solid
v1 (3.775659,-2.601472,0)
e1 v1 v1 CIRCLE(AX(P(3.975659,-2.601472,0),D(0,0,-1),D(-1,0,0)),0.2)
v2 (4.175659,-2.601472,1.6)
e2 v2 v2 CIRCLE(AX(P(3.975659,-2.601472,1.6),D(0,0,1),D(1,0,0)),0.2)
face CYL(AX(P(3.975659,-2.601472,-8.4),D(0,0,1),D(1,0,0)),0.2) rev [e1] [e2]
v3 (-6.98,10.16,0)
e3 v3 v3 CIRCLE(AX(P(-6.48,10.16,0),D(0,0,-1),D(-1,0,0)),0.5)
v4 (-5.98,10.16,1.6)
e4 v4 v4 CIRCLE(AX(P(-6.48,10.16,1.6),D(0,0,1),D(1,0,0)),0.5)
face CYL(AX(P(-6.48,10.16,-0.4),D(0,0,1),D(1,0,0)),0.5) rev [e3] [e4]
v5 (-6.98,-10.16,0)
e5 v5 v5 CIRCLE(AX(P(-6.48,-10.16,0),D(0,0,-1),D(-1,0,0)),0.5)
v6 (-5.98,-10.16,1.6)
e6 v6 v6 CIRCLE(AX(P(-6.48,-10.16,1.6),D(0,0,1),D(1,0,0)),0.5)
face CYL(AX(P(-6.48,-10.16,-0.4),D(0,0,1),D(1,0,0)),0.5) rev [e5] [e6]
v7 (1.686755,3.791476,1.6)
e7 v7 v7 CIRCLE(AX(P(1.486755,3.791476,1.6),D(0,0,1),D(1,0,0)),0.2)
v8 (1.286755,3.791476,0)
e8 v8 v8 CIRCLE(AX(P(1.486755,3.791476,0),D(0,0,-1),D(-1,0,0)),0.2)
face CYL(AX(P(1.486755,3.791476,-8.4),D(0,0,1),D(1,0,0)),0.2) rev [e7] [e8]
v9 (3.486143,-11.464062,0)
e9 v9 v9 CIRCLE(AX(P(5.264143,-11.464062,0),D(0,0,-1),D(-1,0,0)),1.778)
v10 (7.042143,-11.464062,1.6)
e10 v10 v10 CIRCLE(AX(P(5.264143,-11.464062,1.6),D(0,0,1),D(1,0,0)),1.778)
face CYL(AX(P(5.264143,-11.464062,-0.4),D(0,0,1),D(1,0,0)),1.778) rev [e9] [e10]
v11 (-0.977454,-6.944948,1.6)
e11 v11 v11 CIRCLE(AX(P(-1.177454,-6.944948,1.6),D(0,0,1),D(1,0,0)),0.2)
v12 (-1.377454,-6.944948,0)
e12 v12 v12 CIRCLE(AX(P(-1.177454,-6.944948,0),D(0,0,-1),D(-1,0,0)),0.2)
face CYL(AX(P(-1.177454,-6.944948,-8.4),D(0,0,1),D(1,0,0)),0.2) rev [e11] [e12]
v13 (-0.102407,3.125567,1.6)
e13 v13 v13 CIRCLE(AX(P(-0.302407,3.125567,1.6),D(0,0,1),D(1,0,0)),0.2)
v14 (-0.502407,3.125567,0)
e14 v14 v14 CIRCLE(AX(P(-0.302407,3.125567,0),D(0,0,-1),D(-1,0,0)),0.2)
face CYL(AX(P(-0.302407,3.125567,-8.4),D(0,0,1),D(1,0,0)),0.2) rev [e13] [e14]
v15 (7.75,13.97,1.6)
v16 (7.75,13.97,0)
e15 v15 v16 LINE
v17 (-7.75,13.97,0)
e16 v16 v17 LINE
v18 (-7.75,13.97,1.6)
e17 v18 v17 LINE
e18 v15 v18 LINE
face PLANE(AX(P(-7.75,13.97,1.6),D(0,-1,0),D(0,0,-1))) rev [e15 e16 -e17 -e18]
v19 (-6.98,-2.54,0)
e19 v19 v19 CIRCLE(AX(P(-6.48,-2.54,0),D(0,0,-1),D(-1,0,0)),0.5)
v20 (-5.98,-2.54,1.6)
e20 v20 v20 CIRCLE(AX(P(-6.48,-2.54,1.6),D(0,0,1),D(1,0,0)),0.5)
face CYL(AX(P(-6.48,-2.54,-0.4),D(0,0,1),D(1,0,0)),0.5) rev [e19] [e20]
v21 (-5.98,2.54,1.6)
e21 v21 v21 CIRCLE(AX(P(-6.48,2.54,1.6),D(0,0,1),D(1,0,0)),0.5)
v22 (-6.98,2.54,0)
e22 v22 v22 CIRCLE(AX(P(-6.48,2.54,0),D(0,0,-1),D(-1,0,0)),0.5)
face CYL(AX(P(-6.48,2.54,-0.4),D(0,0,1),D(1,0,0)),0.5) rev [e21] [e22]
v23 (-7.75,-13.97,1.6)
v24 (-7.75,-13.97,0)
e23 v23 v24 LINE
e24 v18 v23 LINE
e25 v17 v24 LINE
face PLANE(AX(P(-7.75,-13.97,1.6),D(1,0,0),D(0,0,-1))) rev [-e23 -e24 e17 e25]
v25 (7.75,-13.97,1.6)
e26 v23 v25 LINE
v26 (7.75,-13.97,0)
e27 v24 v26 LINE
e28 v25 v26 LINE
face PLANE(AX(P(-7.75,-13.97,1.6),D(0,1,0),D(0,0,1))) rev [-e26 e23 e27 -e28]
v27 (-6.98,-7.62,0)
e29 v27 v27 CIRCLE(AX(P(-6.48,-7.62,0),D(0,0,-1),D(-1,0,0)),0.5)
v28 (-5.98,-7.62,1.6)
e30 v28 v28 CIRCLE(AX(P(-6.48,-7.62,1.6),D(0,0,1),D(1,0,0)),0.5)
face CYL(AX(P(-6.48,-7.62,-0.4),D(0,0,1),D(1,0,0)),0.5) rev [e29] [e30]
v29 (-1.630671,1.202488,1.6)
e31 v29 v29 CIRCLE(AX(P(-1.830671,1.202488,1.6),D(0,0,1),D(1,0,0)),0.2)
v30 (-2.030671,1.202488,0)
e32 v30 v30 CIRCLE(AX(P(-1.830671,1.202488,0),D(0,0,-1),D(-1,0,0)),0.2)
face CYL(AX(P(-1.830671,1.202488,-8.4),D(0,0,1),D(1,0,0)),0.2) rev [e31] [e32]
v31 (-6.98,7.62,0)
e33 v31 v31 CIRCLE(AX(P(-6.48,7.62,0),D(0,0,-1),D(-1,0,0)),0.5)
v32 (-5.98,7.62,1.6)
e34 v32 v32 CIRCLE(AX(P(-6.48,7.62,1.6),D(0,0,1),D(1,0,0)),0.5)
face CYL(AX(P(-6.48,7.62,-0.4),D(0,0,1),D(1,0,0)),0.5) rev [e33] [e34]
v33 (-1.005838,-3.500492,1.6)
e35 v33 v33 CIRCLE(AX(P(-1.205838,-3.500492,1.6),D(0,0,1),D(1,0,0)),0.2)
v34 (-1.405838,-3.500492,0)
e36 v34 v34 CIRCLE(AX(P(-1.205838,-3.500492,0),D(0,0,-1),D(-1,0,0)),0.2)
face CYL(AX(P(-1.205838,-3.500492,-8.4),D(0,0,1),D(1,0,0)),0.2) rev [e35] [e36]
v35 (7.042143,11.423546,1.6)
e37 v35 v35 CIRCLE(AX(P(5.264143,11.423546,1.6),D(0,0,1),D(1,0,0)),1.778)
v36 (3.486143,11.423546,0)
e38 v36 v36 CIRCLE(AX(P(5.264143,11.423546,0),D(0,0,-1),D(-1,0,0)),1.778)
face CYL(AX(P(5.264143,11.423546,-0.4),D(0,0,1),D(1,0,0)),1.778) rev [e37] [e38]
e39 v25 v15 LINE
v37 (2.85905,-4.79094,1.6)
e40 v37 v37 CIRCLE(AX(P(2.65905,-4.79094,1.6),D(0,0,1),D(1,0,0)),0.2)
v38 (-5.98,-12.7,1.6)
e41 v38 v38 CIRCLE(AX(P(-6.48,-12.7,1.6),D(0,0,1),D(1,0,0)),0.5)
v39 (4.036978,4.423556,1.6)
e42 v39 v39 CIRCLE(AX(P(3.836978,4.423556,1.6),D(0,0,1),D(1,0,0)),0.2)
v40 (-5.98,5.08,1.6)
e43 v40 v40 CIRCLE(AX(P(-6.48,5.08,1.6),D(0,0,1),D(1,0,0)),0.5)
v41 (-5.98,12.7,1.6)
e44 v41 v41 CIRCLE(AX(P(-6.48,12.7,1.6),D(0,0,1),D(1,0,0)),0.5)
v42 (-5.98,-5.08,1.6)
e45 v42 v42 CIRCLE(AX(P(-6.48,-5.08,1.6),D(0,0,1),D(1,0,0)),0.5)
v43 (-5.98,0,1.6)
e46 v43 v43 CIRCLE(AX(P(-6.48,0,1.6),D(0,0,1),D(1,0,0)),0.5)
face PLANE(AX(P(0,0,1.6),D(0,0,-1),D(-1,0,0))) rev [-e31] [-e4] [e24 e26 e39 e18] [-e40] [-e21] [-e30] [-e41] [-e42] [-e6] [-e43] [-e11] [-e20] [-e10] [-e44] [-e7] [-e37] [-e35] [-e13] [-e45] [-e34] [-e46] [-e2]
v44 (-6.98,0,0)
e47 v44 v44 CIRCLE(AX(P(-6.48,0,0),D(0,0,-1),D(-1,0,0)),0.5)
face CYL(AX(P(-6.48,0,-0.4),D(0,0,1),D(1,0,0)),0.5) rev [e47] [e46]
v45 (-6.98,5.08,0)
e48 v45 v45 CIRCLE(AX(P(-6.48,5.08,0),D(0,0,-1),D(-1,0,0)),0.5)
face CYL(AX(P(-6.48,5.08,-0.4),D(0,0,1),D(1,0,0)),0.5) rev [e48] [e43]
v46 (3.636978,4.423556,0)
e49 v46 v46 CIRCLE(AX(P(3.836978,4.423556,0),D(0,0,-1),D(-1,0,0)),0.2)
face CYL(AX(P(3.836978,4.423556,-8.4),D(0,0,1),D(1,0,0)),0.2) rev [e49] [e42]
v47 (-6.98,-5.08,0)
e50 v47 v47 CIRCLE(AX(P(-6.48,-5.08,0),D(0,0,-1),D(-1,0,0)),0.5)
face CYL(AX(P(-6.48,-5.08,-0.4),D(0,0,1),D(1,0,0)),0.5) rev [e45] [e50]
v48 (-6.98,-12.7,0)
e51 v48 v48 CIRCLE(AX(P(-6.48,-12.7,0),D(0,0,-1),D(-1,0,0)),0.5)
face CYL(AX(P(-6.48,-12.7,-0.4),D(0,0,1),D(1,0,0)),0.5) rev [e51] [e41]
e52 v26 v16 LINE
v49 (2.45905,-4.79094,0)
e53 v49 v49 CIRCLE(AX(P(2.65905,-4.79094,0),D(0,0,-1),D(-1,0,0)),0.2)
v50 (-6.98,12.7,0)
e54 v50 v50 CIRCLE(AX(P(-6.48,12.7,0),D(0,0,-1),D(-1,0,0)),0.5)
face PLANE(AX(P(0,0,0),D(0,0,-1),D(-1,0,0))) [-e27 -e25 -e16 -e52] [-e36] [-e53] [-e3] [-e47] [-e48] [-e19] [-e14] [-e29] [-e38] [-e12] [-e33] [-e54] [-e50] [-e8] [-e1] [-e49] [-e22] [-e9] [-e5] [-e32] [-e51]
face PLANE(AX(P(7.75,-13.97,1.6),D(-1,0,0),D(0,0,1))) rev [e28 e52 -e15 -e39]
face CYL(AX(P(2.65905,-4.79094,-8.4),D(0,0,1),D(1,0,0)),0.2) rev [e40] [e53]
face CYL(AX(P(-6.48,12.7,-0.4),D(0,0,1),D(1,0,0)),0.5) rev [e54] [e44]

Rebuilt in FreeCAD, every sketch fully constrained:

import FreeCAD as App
import Part
import Sketcher
from FreeCAD import Vector


def add_polygon(sketch, points):
    """Adds a closed chain of lines whose ends are joined by coincident constraints."""
    first, n = sketch.GeometryCount, len(points)
    for a, b in zip(points, points[1:] + points[:1]):
        sketch.addGeometry(Part.LineSegment(App.Vector(*a, 0), App.Vector(*b, 0)), False)
    for i in range(n):
        sketch.addConstraint(Sketcher.Constraint("Coincident", first + i, 2, first + (i + 1) % n, 1))

doc = App.newDocument("Part")
params = doc.addObject("Spreadsheet::Sheet", "Params")
for row, (alias, value) in enumerate([
    ("sketch1_width", "15.5 mm"),
    ("sketch1_height", "27.94 mm"),
    ("pad1_length", "1.6 mm"),
    ("sketch2_diameter", "1 mm"),
    ("pocket1_length", "2 mm"),
    ("sketch3_diameter", "0.4 mm"),
    ("pocket2_length", "10 mm"),
], start=1):
    params.set(f"A{row}", alias)
    params.set(f"B{row}", "=" + value)
    params.setAlias(f"B{row}", alias)

body = doc.addObject("PartDesign::Body", "Body")

# Sketch on XY plane
sketch1 = doc.addObject("Sketcher::SketchObject", "Sketch")
body.addObject(sketch1)
sketch1.AttachmentSupport = (doc.XY_Plane, [""])
sketch1.MapMode = "FlatFace"
add_polygon(sketch1, [(-7.75, 13.97), (-7.75, -13.97), (7.75, -13.97), (7.75, 13.97)])  # lines 0-3
sketch1.addConstraint([
    Sketcher.Constraint("Vertical", 0),
    Sketcher.Constraint("Horizontal", 1),
    Sketcher.Constraint("Vertical", 2),
    Sketcher.Constraint("Horizontal", 3),
    Sketcher.Constraint("Symmetric", 0, 2, 2, 2, -1, 1),
    Sketcher.Constraint("DistanceX", 1, 1, 1, 2, 15.5),
    Sketcher.Constraint("DistanceY", 0, 2, 0, 1, 27.94),
])
sketch1.setExpression("Constraints[9]", "Params.sketch1_width")
sketch1.setExpression("Constraints[10]", "Params.sketch1_height")
pad1 = doc.addObject("PartDesign::Pad", "Pad")
body.addObject(pad1)
pad1.Profile = sketch1
pad1.setExpression("Length", "Params.pad1_length")

# Sketch on XY plane
sketch2 = doc.addObject("Sketcher::SketchObject", "Sketch001")
body.addObject(sketch2)
sketch2.AttachmentSupport = (doc.XY_Plane, [""])
sketch2.MapMode = "FlatFace"
sketch2.AttachmentOffset = App.Placement(Vector(0, 0, 1.6), App.Rotation())
sketch2.addGeometry([
    Part.Circle(Vector(-6.48, -12.7, 0), Vector(0, 0, 1), 0.5),  # 0
    Part.Circle(Vector(-6.48, -10.16, 0), Vector(0, 0, 1), 0.5),  # 1
    Part.Circle(Vector(-6.48, -7.62, 0), Vector(0, 0, 1), 0.5),  # 2
    Part.Circle(Vector(-6.48, -5.08, 0), Vector(0, 0, 1), 0.5),  # 3
    Part.Circle(Vector(-6.48, -2.54, 0), Vector(0, 0, 1), 0.5),  # 4
    Part.Circle(Vector(-6.48, 0, 0), Vector(0, 0, 1), 0.5),  # 5
    Part.Circle(Vector(-6.48, 2.54, 0), Vector(0, 0, 1), 0.5),  # 6
    Part.Circle(Vector(-6.48, 5.08, 0), Vector(0, 0, 1), 0.5),  # 7
    Part.Circle(Vector(-6.48, 7.62, 0), Vector(0, 0, 1), 0.5),  # 8
    Part.Circle(Vector(-6.48, 10.16, 0), Vector(0, 0, 1), 0.5),  # 9
    Part.Circle(Vector(-6.48, 12.7, 0), Vector(0, 0, 1), 0.5),  # 10
    Part.Circle(Vector(5.264143, 11.423546, 0), Vector(0, 0, 1), 1.778),  # 11
    Part.Circle(Vector(5.264143, -11.464062, 0), Vector(0, 0, 1), 1.778),  # 12
], False)
sketch2.addConstraint([
    Sketcher.Constraint("Equal", 0, 1),
    Sketcher.Constraint("Equal", 1, 2),
    Sketcher.Constraint("Equal", 2, 3),
    Sketcher.Constraint("Equal", 3, 4),
    Sketcher.Constraint("Equal", 4, 5),
    Sketcher.Constraint("Equal", 5, 6),
    Sketcher.Constraint("Equal", 6, 7),
    Sketcher.Constraint("Equal", 7, 8),
    Sketcher.Constraint("Equal", 8, 9),
    Sketcher.Constraint("Equal", 9, 10),
    Sketcher.Constraint("Equal", 11, 12),
    Sketcher.Constraint("Symmetric", 4, 3, 6, 3, -1),
    Sketcher.Constraint("Symmetric", 3, 3, 7, 3, -1),
    Sketcher.Constraint("Symmetric", 2, 3, 8, 3, -1),
    Sketcher.Constraint("Symmetric", 1, 3, 9, 3, -1),
    Sketcher.Constraint("Symmetric", 0, 3, 10, 3, -1),
    Sketcher.Constraint("PointOnObject", 5, 3, -1),
    Sketcher.Constraint("Vertical", 0, 3, 1, 3),
    Sketcher.Constraint("Vertical", 1, 3, 2, 3),
    Sketcher.Constraint("Vertical", 2, 3, 3, 3),
    Sketcher.Constraint("Vertical", 3, 3, 4, 3),
    Sketcher.Constraint("Vertical", 4, 3, 5, 3),
    Sketcher.Constraint("Vertical", 11, 3, 12, 3),
    Sketcher.Constraint("Diameter", 0, 1.0),
    Sketcher.Constraint("Diameter", 11, 3.556),
    Sketcher.Constraint("DistanceY", 0, 3, -1, 1, 12.7),
    Sketcher.Constraint("DistanceY", 1, 3, 6, 3, 12.7),
    Sketcher.Constraint("DistanceY", 2, 3, 7, 3, 12.7),
    Sketcher.Constraint("DistanceX", 0, 3, -1, 1, 6.48),
    Sketcher.Constraint("DistanceY", 1, 3, -1, 1, 10.16),
    Sketcher.Constraint("DistanceY", 2, 3, -1, 1, 7.62),
    Sketcher.Constraint("DistanceX", -1, 1, 11, 3, 5.264143),
    Sketcher.Constraint("DistanceY", -1, 1, 11, 3, 11.423546),
    Sketcher.Constraint("DistanceY", 12, 3, -1, 1, 11.464062),
])
sketch2.setExpression("Constraints[23]", "Params.sketch2_diameter")
pocket1 = doc.addObject("PartDesign::Pocket", "Pocket")
body.addObject(pocket1)
pocket1.Profile = sketch2
pocket1.setExpression("Length", "Params.pocket1_length")

# Sketch on XY plane
sketch3 = doc.addObject("Sketcher::SketchObject", "Sketch002")
body.addObject(sketch3)
sketch3.AttachmentSupport = (doc.XY_Plane, [""])
sketch3.MapMode = "FlatFace"
sketch3.AttachmentOffset = App.Placement(Vector(0, 0, 1.6), App.Rotation())
sketch3.addGeometry([
    Part.Circle(Vector(-1.830671, 1.202488, 0), Vector(0, 0, 1), 0.2),  # 0
    Part.Circle(Vector(-0.302407, 3.125567, 0), Vector(0, 0, 1), 0.2),  # 1
    Part.Circle(Vector(1.486755, 3.791476, 0), Vector(0, 0, 1), 0.2),  # 2
    Part.Circle(Vector(3.836978, 4.423556, 0), Vector(0, 0, 1), 0.2),  # 3
    Part.Circle(Vector(3.975659, -2.601472, 0), Vector(0, 0, 1), 0.2),  # 4
    Part.Circle(Vector(2.65905, -4.79094, 0), Vector(0, 0, 1), 0.2),  # 5
    Part.Circle(Vector(-1.177454, -6.944948, 0), Vector(0, 0, 1), 0.2),  # 6
    Part.Circle(Vector(-1.205838, -3.500492, 0), Vector(0, 0, 1), 0.2),  # 7
], False)
sketch3.addConstraint([
    Sketcher.Constraint("Equal", 0, 1),
    Sketcher.Constraint("Equal", 1, 2),
    Sketcher.Constraint("Equal", 2, 3),
    Sketcher.Constraint("Equal", 3, 4),
    Sketcher.Constraint("Equal", 4, 5),
    Sketcher.Constraint("Equal", 5, 6),
    Sketcher.Constraint("Equal", 6, 7),
    Sketcher.Constraint("Diameter", 0, 0.4),
    Sketcher.Constraint("DistanceX", 0, 3, -1, 1, 1.830671),
    Sketcher.Constraint("DistanceX", -1, 1, 4, 3, 3.975659),
    Sketcher.Constraint("DistanceY", 4, 3, -1, 1, 2.601472),
    Sketcher.Constraint("DistanceX", -1, 1, 5, 3, 2.65905),
    Sketcher.Constraint("DistanceY", 5, 3, -1, 1, 4.79094),
    Sketcher.Constraint("DistanceX", 7, 3, -1, 1, 1.205838),
    Sketcher.Constraint("DistanceY", 0, 3, 1, 3, 1.923079),
    Sketcher.Constraint("DistanceY", 1, 3, 2, 3, 0.66591),
    Sketcher.Constraint("DistanceY", 2, 3, 3, 3, 0.632079),
    Sketcher.Constraint("DistanceX", 0, 3, 3, 3, 5.667648),
    Sketcher.Constraint("DistanceY", 4, 3, 2, 3, 6.392948),
    Sketcher.Constraint("DistanceX", 6, 3, 2, 3, 2.664209),
    Sketcher.Constraint("DistanceY", 5, 3, 7, 3, 1.290448),
    Sketcher.Constraint("DistanceX", 7, 3, 1, 3, 0.903432),
    Sketcher.Constraint("DistanceX", -1, 1, 2, 3, 1.486755),
    Sketcher.Constraint("DistanceY", 6, 3, -1, 1, 6.944948),
])
sketch3.setExpression("Constraints[7]", "Params.sketch3_diameter")
pocket2 = doc.addObject("PartDesign::Pocket", "Pocket001")
body.addObject(pocket2)
pocket2.Profile = sketch3
pocket2.setExpression("Length", "Params.pocket2_length")

doc.recompute()
